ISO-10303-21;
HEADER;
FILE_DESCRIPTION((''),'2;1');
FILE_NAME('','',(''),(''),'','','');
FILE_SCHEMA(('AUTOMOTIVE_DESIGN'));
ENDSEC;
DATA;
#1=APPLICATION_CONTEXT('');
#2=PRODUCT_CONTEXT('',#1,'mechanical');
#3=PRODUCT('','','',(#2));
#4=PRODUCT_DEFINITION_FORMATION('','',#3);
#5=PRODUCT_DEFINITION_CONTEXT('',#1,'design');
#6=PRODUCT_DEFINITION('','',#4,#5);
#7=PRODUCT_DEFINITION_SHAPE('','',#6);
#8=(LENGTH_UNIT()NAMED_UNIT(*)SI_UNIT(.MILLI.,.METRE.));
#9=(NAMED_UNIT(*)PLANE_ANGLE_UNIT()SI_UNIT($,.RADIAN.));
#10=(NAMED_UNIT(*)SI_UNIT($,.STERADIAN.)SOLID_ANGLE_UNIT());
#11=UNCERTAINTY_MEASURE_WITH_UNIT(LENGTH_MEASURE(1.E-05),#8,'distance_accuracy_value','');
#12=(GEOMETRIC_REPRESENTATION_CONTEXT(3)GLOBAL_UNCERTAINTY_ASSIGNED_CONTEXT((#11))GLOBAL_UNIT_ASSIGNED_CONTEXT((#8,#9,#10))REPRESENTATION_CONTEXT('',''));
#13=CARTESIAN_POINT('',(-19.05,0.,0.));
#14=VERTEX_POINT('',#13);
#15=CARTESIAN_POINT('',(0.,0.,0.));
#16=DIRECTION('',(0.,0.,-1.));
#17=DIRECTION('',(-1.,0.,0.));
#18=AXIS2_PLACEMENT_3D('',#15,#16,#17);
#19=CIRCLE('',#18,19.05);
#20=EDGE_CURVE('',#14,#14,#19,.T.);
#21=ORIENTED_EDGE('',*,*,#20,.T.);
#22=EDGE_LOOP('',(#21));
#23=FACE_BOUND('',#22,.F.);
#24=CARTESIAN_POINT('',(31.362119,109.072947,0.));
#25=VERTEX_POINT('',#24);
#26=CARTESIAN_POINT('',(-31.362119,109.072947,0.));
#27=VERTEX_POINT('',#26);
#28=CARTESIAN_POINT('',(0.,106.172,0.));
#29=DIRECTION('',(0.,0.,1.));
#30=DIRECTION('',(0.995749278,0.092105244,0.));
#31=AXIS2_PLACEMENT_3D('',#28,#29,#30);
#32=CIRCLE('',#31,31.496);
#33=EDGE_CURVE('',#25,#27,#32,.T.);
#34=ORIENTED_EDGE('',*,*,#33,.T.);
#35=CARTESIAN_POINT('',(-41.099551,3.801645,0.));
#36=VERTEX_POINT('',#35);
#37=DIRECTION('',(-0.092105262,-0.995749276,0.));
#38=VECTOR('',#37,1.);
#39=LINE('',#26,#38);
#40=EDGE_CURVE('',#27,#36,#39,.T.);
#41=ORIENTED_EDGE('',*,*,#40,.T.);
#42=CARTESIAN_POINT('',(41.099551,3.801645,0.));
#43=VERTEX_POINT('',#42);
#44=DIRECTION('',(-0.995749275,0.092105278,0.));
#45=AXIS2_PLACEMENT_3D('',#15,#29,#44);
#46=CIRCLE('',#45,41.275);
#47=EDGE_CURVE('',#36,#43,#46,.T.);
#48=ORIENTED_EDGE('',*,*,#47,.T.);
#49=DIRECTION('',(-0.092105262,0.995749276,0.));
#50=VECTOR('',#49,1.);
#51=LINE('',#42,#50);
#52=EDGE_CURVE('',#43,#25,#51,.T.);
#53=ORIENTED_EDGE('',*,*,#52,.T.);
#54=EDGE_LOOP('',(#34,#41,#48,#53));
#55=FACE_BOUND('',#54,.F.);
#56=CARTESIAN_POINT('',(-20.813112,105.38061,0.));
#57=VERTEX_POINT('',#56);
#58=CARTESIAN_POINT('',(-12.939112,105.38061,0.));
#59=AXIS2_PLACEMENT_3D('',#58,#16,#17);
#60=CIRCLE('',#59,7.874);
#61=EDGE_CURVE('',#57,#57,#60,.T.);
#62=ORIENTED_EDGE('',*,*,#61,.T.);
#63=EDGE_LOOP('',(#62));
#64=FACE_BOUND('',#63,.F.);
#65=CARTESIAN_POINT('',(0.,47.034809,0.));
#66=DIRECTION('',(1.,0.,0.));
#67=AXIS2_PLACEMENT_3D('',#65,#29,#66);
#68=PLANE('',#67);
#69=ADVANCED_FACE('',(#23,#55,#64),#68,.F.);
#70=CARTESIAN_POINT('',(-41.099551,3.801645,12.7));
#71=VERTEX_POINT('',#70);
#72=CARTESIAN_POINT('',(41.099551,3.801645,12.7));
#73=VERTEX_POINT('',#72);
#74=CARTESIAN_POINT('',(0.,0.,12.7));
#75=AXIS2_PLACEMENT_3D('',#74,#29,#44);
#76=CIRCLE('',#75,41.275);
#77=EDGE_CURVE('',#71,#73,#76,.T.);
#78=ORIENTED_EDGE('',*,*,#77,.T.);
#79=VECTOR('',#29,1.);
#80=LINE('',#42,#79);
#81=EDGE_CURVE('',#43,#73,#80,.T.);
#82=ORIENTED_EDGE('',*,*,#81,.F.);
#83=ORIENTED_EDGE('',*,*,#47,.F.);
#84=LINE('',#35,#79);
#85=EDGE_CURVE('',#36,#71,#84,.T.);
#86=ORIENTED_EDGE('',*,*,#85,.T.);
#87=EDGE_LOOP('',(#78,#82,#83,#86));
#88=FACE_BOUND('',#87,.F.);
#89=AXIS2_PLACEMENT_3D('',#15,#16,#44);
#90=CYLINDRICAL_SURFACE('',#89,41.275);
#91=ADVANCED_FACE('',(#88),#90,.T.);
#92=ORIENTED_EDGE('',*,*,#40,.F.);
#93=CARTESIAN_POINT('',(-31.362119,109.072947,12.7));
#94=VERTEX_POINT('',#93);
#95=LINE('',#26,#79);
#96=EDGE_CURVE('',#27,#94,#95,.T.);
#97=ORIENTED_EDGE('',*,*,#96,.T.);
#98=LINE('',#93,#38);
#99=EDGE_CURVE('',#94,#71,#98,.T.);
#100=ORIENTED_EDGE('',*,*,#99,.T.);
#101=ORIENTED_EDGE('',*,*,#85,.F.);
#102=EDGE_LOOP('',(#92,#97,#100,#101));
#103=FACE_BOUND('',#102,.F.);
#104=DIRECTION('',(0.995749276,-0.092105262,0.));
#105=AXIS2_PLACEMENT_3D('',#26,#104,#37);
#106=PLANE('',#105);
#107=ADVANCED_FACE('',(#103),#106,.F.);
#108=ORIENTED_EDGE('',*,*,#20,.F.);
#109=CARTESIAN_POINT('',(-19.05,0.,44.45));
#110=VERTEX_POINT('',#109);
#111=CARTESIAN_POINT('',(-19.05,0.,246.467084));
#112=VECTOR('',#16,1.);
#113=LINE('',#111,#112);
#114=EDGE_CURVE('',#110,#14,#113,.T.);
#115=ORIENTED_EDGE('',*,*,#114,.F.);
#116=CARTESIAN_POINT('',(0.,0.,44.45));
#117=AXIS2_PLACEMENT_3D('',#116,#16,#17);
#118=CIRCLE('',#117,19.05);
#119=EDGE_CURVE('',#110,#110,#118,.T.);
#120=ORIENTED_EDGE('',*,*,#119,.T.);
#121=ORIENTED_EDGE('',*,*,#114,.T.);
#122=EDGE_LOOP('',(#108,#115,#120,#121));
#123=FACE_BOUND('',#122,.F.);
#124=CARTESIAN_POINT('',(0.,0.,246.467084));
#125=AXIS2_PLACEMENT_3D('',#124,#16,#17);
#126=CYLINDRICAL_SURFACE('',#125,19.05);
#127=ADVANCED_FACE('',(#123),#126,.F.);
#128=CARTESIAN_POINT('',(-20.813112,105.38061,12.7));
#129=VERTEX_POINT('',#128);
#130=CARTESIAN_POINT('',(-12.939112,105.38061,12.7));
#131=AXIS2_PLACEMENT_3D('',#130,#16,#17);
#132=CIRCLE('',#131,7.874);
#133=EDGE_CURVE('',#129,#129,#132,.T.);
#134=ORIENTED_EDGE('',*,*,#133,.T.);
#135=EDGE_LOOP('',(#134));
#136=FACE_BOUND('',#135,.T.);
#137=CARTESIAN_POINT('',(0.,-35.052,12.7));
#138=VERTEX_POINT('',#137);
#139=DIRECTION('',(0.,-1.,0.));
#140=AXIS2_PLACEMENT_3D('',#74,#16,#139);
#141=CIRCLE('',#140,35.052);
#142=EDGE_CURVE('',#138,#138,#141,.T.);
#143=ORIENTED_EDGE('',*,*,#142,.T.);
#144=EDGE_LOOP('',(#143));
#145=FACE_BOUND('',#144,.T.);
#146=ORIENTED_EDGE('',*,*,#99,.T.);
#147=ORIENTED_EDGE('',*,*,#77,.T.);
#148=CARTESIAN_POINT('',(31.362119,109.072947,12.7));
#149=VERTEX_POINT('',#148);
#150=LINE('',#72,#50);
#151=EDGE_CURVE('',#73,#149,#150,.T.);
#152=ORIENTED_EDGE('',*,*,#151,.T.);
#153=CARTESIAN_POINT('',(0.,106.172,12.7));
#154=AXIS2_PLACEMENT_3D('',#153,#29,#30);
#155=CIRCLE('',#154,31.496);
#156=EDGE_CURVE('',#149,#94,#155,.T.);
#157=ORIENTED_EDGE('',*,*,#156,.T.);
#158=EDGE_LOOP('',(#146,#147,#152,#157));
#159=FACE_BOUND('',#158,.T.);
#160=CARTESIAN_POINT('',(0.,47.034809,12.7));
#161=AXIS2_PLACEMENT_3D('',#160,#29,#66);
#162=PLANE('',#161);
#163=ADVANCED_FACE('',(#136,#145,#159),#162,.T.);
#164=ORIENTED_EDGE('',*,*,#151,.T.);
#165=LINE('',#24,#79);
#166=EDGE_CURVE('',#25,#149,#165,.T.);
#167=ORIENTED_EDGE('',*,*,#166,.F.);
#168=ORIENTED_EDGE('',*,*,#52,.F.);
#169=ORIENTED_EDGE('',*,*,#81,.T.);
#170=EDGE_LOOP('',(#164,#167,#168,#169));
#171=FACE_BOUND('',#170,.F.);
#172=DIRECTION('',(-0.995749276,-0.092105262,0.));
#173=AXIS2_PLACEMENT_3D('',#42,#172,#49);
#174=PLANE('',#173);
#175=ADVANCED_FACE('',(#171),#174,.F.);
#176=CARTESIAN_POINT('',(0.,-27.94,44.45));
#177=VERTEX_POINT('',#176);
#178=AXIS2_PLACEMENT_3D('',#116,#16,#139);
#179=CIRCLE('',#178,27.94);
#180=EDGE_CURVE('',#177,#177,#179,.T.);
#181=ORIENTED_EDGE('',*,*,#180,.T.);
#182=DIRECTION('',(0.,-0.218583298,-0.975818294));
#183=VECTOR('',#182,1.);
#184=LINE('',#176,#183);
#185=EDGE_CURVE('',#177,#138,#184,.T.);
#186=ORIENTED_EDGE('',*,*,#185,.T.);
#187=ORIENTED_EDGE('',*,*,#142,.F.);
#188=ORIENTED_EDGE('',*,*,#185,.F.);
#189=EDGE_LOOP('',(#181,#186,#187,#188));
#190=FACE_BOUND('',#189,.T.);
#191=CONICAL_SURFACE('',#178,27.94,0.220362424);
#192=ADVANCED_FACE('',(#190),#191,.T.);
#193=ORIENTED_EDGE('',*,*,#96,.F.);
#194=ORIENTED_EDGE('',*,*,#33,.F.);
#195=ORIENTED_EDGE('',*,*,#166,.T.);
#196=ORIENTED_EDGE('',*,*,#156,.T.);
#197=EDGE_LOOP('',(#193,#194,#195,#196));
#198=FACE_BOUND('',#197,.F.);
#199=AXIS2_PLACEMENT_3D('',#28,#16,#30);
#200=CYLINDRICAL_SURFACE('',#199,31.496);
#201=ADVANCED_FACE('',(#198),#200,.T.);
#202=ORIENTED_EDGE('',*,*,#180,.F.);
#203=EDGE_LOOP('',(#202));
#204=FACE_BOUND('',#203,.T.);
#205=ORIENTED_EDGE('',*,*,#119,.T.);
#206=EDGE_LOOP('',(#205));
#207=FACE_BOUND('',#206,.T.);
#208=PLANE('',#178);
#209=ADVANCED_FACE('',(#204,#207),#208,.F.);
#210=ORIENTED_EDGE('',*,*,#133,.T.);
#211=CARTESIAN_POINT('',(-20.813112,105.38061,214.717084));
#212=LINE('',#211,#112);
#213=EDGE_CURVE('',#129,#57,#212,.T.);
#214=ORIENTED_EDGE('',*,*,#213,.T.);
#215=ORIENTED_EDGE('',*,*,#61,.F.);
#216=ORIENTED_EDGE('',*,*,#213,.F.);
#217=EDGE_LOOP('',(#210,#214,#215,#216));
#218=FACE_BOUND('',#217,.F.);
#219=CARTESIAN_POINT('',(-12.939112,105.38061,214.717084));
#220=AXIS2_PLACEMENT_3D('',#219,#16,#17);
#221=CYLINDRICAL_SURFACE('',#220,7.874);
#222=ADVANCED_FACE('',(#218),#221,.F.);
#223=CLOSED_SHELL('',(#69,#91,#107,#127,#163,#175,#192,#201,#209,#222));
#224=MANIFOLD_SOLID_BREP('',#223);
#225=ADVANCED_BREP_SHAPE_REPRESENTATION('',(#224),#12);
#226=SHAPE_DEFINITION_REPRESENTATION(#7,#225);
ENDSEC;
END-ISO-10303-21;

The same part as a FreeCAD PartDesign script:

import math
import FreeCAD as App
import Part
import Sketcher
from FreeCAD import Vector
Q = App.Units.Quantity


def add_polygon(sketch, points):
    """Adds a closed chain of lines whose ends are joined by coincident constraints."""
    first, n = sketch.GeometryCount, len(points)
    for a, b in zip(points, points[1:] + points[:1]):
        sketch.addGeometry(Part.LineSegment(App.Vector(*a, 0), App.Vector(*b, 0)), False)
    for i in range(n):
        sketch.addConstraint(Sketcher.Constraint("Coincident", first + i, 2, first + (i + 1) % n, 1))

doc = App.newDocument("Part")
body = doc.addObject("PartDesign::Body", "Body")

# Sketch on XY plane
sketch1 = doc.addObject("Sketcher::SketchObject", "Sketch")
body.addObject(sketch1)
sketch1.AttachmentSupport = (doc.XY_Plane, [""])
sketch1.MapMode = "FlatFace"
sketch1.addGeometry([
    Part.LineSegment(Vector(-31.362119, 109.072947, 0), Vector(-41.099551, 3.801645, 0)),
    Part.ArcOfCircle(Part.Circle(Vector(0, 0, 0), Vector(0, 0, 1), 41.275), math.radians(174.715266), math.radians(365.284734)),
    Part.LineSegment(Vector(41.099551, 3.801645, 0), Vector(31.362119, 109.072947, 0)),
    Part.ArcOfCircle(Part.Circle(Vector(0, 106.172, 0), Vector(0, 0, 1), 31.496), math.radians(5.284732), math.radians(174.715268)),
], False)
sketch1.addConstraint([
    Sketcher.Constraint("Tangent", 0, 2, 1, 1),
    Sketcher.Constraint("Tangent", 1, 2, 2, 1),
    Sketcher.Constraint("Tangent", 2, 2, 3, 1),
    Sketcher.Constraint("Tangent", 3, 2, 0, 1),
    Sketcher.Constraint("Coincident", 1, 3, -1, 1),
    Sketcher.Constraint("PointOnObject", 3, 3, -2),
    Sketcher.Constraint("Radius", 3, Q("1.24 in")),
    Sketcher.Constraint("Radius", 1, Q("1.625 in")),
    Sketcher.Constraint("DistanceY", -1, 1, 3, 3, Q("4.18 in")),
])
pad1 = doc.addObject("PartDesign::Pad", "Pad")
body.addObject(pad1)
pad1.Profile = sketch1
pad1.Length = Q("0.5 in")

# Sketch on YZ plane
sketch2 = doc.addObject("Sketcher::SketchObject", "Sketch001")
body.addObject(sketch2)
sketch2.AttachmentSupport = (doc.YZ_Plane, [""])
sketch2.MapMode = "FlatFace"
add_polygon(sketch2, [(-27.94, 44.45), (-35.052, 12.7), (0, 12.7), (0, 44.45)])  # lines 0-3
sketch2.addConstraint([
    Sketcher.Constraint("Horizontal", 1),
    Sketcher.Constraint("Vertical", 2),
    Sketcher.Constraint("Horizontal", 3),
    Sketcher.Constraint("PointOnObject", 1, 2, -2),
    Sketcher.Constraint("DistanceX", 3, 2, 3, 1, Q("1.1 in")),
    Sketcher.Constraint("DistanceX", 1, 1, 1, 2, Q("1.38 in")),
    Sketcher.Constraint("DistanceY", 2, 1, 2, 2, Q("1.25 in")),
    Sketcher.Constraint("DistanceY", -1, 1, 0, 2, Q("0.5 in")),
])
revolution = doc.addObject("PartDesign::Revolution", "Revolution")
body.addObject(revolution)
revolution.Profile = sketch2
revolution.ReferenceAxis = (sketch2, ["V_Axis"])
revolution.Angle = 360

# Sketch on XY plane
sketch3 = doc.addObject("Sketcher::SketchObject", "Sketch002")
body.addObject(sketch3)
sketch3.AttachmentSupport = (doc.XY_Plane, [""])
sketch3.MapMode = "FlatFace"
sketch3.AttachmentOffset = App.Placement(Vector(0, 0, 1.75 * 25.4), App.Rotation())
sketch3.addGeometry(Part.Circle(Vector(0, 0, 0), Vector(0, 0, 1), 19.05), False)
sketch3.addConstraint([
    Sketcher.Constraint("Coincident", 0, 3, -1, 1),
    Sketcher.Constraint("Diameter", 0, Q("1.5 in")),
])
doc.recompute()
hole = doc.addObject("PartDesign::Hole", "Hole")
body.addObject(hole)
hole.Profile = sketch3
hole.ThreadType = "None"
hole.Diameter = Q("1.5 in")
hole.DepthType = "ThroughAll"

# Sketch on XY plane
sketch4 = doc.addObject("Sketcher::SketchObject", "Sketch003")
body.addObject(sketch4)
sketch4.AttachmentSupport = (doc.XY_Plane, [""])
sketch4.MapMode = "FlatFace"
sketch4.AttachmentOffset = App.Placement(Vector(0, 0, 0.5 * 25.4), App.Rotation())
sketch4.addGeometry(Part.Circle(Vector(-12.939112, 105.38061, 0), Vector(0, 0, 1), 7.874), False)
sketch4.addConstraint([
    Sketcher.Constraint("Diameter", 0, Q("0.62 in")),
    Sketcher.Constraint("DistanceY", -1, 1, 0, 3, Q("105.38061 mm")),
    Sketcher.Constraint("DistanceX", 0, 3, -1, 1, Q("12.939112 mm")),
])
doc.recompute()
hole2 = doc.addObject("PartDesign::Hole", "Hole001")
body.addObject(hole2)
hole2.Profile = sketch4
hole2.ThreadType = "None"
hole2.Diameter = Q("0.62 in")
hole2.DepthType = "ThroughAll"

doc.recompute()
